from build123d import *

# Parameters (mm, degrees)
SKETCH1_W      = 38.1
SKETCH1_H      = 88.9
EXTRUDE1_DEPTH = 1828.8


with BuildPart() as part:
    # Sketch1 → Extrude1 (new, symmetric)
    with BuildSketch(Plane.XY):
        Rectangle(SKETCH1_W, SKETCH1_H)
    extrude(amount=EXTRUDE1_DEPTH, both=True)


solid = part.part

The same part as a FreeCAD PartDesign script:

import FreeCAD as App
import Part
import Sketcher

V = App.Vector
Q = App.Units.Quantity


def add_polygon(sketch, points):
    """Adds a closed chain of lines whose ends are joined by coincident constraints."""
    first, n = sketch.GeometryCount, len(points)
    for a, b in zip(points, points[1:] + points[:1]):
        sketch.addGeometry(Part.LineSegment(App.Vector(*a, 0), App.Vector(*b, 0)), False)
    for i in range(n):
        sketch.addConstraint(Sketcher.Constraint("Coincident", first + i, 2, first + (i + 1) % n, 1))

doc = App.newDocument("Part")
body = doc.addObject("PartDesign::Body", "Body")

# Sketch on XY plane
sketch1 = doc.addObject("Sketcher::SketchObject", "Sketch")
body.addObject(sketch1)
sketch1.AttachmentSupport = (doc.XY_Plane, [""])
sketch1.MapMode = "FlatFace"
add_polygon(sketch1, [(-19.05, 44.45), (-19.05, -44.45), (19.05, -44.45), (19.05, 44.45)])  # lines 0-3
sketch1.addConstraint(Sketcher.Constraint("Vertical", 0))
sketch1.addConstraint(Sketcher.Constraint("Horizontal", 1))
sketch1.addConstraint(Sketcher.Constraint("Vertical", 2))
sketch1.addConstraint(Sketcher.Constraint("Horizontal", 3))
sketch1.addConstraint(Sketcher.Constraint("Symmetric", 0, 2, 2, 2, -1, 1))
sketch1.addConstraint(Sketcher.Constraint("DistanceX", 1, 1, 1, 2, Q("1.5 in")))
sketch1.addConstraint(Sketcher.Constraint("DistanceY", 0, 2, 0, 1, Q("3.5 in")))
pad1 = doc.addObject("PartDesign::Pad", "Pad")
body.addObject(pad1)
pad1.Profile = sketch1
pad1.Length = Q("144 in")
pad1.Midplane = True

doc.recompute()
